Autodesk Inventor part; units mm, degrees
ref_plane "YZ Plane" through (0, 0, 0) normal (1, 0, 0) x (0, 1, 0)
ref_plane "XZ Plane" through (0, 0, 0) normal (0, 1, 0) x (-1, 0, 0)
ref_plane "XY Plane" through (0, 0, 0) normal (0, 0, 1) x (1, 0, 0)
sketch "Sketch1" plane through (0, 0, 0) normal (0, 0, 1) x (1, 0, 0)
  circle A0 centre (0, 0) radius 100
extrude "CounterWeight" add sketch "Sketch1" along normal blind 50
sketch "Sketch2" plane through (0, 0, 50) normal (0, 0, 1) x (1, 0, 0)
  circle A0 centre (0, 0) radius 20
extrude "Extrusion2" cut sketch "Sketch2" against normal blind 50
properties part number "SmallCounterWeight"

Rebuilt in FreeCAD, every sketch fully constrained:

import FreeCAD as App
import Part
import Sketcher

V = App.Vector

doc = App.newDocument("Part")
body = doc.addObject("PartDesign::Body", "Body")

# Sketch on XY plane
sketch1 = body.newObject("Sketcher::SketchObject", "Sketch")
sketch1.AttachmentSupport = (doc.getObject("XY_Plane"), [""])
sketch1.MapMode = "FlatFace"
sketch1.addGeometry(Part.Circle(V(0, 0, 0), V(0, 0, 1), 100), False)
sketch1.addConstraint([
    Sketcher.Constraint("Coincident", 0, 3, -1, 1),
    Sketcher.Constraint("Diameter", 0, 200.0),
])
pad1 = body.newObject("PartDesign::Pad", "Pad")
pad1.Profile = sketch1
pad1.Length = 50

# Sketch on XY plane
sketch2 = body.newObject("Sketcher::SketchObject", "Sketch001")
sketch2.AttachmentSupport = (doc.getObject("XY_Plane"), [""])
sketch2.MapMode = "FlatFace"
sketch2.AttachmentOffset = App.Placement(V(0, 0, 50), App.Rotation())
sketch2.addGeometry(Part.Circle(V(0, 0, 0), V(0, 0, 1), 20), False)
sketch2.addConstraint([
    Sketcher.Constraint("Coincident", 0, 3, -1, 1),
    Sketcher.Constraint("Diameter", 0, 40.0),
])
pocket1 = body.newObject("PartDesign::Pocket", "Pocket")
pocket1.Profile = sketch2
pocket1.Length = 50

doc.recompute()
